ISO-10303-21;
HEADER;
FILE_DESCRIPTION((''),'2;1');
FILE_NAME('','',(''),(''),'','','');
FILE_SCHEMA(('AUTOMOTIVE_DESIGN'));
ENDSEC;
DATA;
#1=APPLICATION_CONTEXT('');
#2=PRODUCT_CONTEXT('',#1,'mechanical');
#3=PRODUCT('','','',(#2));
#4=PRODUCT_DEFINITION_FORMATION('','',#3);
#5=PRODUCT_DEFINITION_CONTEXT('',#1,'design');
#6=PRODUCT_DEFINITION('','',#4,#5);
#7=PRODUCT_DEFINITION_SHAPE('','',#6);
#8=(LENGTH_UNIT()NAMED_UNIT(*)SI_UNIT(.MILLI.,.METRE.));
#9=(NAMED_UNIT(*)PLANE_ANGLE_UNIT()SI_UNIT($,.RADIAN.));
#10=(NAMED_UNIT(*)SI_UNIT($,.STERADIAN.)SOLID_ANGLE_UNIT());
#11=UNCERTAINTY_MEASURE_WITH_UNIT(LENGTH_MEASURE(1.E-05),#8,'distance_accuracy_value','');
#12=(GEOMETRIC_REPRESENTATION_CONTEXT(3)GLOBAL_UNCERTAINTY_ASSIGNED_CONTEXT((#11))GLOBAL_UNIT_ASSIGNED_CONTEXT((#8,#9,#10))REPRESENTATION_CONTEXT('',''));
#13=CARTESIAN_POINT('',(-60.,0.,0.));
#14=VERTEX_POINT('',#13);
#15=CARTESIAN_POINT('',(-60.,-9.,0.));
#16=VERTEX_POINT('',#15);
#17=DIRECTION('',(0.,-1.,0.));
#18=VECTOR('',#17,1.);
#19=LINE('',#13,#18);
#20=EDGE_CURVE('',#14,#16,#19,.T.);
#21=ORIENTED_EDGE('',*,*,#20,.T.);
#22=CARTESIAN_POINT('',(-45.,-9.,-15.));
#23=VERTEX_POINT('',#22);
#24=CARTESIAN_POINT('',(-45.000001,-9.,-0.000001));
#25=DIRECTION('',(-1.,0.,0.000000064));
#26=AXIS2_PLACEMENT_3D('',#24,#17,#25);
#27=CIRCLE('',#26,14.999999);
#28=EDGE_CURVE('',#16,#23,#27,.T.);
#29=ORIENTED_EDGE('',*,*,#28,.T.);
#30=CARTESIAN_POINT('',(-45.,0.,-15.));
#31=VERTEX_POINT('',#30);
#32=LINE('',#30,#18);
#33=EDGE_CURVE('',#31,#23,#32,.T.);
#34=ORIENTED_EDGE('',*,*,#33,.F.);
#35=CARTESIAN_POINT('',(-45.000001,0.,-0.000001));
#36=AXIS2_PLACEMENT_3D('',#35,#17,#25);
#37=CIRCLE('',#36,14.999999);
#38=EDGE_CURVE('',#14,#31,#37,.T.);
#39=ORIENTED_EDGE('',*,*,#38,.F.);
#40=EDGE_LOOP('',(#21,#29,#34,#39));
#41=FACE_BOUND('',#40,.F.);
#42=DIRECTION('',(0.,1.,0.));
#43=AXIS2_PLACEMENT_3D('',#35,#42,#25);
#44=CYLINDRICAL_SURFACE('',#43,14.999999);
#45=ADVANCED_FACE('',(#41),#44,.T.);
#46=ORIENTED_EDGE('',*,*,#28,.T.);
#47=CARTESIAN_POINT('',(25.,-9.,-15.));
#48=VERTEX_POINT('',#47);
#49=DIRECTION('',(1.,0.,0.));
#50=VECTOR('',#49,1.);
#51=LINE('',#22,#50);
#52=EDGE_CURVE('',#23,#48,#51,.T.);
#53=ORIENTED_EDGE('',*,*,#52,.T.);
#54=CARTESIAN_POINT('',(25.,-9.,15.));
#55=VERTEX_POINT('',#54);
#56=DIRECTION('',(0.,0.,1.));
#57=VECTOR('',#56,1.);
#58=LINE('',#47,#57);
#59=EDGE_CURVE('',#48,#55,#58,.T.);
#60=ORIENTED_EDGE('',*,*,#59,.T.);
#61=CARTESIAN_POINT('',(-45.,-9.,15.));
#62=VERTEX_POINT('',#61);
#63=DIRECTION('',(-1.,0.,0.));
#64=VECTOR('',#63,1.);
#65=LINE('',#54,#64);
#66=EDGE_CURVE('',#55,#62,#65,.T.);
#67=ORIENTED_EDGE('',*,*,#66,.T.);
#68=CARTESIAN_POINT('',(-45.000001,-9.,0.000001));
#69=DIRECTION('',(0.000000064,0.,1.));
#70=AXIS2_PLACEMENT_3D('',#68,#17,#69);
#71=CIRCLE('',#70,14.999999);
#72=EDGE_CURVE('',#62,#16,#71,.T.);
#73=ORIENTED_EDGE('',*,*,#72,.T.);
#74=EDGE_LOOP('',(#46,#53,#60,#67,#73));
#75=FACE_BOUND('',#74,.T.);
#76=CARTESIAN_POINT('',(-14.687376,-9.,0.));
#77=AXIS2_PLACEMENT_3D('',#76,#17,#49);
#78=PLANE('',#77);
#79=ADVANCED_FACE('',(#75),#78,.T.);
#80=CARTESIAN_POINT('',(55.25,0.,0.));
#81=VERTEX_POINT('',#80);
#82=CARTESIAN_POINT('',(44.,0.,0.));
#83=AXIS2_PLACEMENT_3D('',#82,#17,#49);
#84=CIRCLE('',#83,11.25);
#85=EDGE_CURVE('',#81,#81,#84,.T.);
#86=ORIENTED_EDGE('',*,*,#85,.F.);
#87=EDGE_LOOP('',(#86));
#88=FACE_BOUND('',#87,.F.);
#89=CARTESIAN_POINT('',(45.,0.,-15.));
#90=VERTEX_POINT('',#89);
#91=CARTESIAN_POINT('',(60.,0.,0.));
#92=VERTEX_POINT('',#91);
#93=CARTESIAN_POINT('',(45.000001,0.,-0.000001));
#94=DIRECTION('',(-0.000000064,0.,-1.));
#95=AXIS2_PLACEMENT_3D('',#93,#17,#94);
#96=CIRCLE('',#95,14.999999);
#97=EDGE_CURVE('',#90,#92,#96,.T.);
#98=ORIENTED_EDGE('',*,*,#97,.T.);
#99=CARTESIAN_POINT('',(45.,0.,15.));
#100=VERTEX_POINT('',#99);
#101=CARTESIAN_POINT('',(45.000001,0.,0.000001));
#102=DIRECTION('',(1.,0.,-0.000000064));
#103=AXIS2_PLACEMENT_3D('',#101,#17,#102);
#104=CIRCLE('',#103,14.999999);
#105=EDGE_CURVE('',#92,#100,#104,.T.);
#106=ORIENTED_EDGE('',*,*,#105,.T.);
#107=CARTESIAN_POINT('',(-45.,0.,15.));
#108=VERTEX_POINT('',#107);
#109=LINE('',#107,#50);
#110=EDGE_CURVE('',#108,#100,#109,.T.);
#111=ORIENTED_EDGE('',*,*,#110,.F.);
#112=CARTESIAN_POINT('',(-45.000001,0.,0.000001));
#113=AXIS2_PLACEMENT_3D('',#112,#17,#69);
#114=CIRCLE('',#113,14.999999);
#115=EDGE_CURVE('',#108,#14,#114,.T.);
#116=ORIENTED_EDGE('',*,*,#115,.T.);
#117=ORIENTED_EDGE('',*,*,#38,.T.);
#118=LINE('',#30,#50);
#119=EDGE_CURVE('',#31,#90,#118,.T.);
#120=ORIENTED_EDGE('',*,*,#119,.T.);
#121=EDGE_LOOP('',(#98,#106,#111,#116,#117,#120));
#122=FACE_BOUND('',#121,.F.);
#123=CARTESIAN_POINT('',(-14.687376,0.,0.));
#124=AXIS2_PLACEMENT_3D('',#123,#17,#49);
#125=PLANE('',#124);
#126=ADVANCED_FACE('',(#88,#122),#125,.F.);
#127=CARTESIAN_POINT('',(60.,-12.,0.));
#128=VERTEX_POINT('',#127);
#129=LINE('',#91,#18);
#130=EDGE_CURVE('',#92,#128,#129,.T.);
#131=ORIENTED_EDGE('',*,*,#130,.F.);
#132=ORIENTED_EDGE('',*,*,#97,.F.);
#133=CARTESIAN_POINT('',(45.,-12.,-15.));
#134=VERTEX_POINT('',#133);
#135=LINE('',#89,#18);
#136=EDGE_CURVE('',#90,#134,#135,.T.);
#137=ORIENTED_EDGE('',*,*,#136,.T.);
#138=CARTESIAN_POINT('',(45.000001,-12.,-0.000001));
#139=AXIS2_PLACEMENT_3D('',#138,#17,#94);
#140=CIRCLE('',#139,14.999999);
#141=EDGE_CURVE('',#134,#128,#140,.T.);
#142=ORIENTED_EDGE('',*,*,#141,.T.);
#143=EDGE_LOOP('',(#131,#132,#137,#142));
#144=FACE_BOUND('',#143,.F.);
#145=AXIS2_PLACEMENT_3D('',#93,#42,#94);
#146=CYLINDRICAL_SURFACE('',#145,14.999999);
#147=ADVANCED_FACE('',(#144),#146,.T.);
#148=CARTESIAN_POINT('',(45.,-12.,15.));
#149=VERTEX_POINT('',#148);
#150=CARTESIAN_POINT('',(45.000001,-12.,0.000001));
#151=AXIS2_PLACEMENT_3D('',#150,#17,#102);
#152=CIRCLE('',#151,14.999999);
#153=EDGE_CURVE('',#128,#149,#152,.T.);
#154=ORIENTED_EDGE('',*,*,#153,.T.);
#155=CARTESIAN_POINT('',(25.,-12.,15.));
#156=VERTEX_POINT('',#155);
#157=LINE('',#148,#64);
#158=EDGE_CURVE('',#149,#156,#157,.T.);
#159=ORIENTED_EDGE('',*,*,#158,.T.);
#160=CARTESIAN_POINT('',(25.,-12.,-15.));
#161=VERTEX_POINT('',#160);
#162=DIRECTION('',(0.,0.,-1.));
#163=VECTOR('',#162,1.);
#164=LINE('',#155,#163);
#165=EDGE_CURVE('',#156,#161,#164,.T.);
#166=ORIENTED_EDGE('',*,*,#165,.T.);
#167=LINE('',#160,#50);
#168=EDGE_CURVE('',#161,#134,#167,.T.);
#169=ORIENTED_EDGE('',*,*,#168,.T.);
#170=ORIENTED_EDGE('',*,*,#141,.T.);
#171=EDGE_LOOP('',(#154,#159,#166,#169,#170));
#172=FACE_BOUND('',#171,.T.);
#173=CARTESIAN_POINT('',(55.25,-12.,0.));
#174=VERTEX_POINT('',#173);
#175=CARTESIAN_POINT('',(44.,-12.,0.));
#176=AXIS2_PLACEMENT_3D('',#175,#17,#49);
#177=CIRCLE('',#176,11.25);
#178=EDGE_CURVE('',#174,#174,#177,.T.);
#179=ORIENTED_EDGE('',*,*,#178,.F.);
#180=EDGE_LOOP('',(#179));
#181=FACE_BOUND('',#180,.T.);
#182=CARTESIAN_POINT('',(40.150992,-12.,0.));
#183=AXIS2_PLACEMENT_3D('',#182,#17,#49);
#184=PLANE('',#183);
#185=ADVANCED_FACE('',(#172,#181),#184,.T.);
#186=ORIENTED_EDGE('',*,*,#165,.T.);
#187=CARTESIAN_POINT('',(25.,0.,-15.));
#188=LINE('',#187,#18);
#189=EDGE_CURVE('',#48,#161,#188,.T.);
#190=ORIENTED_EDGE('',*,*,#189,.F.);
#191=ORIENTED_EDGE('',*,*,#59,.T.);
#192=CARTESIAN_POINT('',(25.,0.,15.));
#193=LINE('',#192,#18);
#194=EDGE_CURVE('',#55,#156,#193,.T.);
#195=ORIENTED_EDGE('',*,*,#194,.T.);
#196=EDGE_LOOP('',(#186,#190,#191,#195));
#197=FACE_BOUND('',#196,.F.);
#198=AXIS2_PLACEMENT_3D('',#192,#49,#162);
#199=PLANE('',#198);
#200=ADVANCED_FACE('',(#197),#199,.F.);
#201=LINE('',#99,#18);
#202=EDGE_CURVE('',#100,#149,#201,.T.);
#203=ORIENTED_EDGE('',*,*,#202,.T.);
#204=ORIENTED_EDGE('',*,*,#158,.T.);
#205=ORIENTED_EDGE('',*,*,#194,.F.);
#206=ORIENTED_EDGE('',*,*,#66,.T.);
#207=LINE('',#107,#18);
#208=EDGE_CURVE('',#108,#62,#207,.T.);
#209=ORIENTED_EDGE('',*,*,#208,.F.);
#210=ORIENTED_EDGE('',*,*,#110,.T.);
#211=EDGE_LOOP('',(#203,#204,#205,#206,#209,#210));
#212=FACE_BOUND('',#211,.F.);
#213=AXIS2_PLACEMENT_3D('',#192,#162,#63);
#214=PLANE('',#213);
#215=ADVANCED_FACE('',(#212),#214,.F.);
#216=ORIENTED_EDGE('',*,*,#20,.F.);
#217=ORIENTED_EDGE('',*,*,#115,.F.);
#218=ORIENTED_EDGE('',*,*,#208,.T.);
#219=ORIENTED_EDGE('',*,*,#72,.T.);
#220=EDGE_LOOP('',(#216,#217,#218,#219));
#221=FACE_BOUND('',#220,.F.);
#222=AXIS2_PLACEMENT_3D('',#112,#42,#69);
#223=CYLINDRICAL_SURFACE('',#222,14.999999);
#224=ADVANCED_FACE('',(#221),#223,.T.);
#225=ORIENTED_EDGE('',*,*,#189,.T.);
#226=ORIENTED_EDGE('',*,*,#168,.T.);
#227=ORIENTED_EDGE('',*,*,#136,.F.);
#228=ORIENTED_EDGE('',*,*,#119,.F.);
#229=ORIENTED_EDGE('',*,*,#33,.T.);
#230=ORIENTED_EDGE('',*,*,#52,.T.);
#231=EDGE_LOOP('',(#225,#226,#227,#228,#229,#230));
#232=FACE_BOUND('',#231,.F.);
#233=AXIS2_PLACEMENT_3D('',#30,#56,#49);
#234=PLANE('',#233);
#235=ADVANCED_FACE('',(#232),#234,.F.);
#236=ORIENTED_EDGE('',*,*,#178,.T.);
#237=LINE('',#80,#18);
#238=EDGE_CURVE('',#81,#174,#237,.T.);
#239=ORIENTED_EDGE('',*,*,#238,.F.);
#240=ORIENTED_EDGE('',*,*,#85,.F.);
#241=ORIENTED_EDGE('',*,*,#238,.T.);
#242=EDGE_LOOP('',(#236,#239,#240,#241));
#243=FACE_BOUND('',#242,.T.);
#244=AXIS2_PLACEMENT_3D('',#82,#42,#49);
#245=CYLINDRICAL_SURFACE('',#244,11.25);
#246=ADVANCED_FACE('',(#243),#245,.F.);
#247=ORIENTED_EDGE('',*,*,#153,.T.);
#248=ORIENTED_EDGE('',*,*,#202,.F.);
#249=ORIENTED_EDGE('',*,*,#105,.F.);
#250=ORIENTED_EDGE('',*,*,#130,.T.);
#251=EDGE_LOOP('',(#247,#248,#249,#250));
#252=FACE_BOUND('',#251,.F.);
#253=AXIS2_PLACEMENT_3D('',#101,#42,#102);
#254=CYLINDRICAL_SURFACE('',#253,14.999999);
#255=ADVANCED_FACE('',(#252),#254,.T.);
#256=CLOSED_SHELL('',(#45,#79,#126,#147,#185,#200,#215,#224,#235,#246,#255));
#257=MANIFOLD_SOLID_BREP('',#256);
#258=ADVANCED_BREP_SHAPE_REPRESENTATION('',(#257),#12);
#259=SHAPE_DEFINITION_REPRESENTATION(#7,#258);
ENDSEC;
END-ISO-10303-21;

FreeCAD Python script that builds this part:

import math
import FreeCAD as App
import Part
import Sketcher
from FreeCAD import Vector

doc = App.newDocument("Part")
params = doc.addObject("Spreadsheet::Sheet", "Params")
for row, (alias, value) in enumerate([
    ("sketch1_radius", "14.999999 mm"),
    ("sketch1_diameter", "22.5 mm"),
    ("sketch1_width", "20 mm"),
    ("pad1_length", "12 mm"),
    ("sketch2_radius", "14.999999 mm"),
    ("sketch2_width", "70 mm"),
    ("pad2_length", "9 mm"),
], start=1):
    params.set(f"A{row}", alias)
    params.set(f"B{row}", "=" + value)
    params.setAlias(f"B{row}", alias)

body = doc.addObject("PartDesign::Body", "Body")

# Sketch on XZ plane
sketch1 = body.newObject("Sketcher::SketchObject", "Sketch")
sketch1.AttachmentSupport = (doc.getObject("XZ_Plane"), [""])
sketch1.MapMode = "FlatFace"
sketch1.addGeometry(Part.LineSegment(Vector(25, -15, 0), Vector(45, -15, 0)), False)
sketch1.addGeometry(Part.ArcOfCircle(Part.Circle(Vector(45.000001, -0.000001, 0), Vector(0, 0, 1), 14.999999), math.radians(-90.000004), math.radians(0.000004)), False)
sketch1.addGeometry(Part.ArcOfCircle(Part.Circle(Vector(45.000001, 0.000001, 0), Vector(0, 0, 1), 14.999999), math.radians(-0.000004), math.radians(90.000004)), False)
sketch1.addGeometry(Part.LineSegment(Vector(45, 15, 0), Vector(25, 15, 0)), False)
sketch1.addGeometry(Part.LineSegment(Vector(25, 15, 0), Vector(25, -15, 0)), False)
sketch1.addGeometry(Part.Circle(Vector(44, 0, 0), Vector(0, 0, 1), 11.25), False)
sketch1.addConstraint(Sketcher.Constraint("Tangent", 0, 2, 1, 1))
sketch1.addConstraint(Sketcher.Constraint("Tangent", 1, 2, 2, 1))
sketch1.addConstraint(Sketcher.Constraint("Tangent", 2, 2, 3, 1))
sketch1.addConstraint(Sketcher.Constraint("Coincident", 3, 2, 4, 1))
sketch1.addConstraint(Sketcher.Constraint("Coincident", 4, 2, 0, 1))
sketch1.addConstraint(Sketcher.Constraint("Horizontal", 0))
sketch1.addConstraint(Sketcher.Constraint("Horizontal", 3))
sketch1.addConstraint(Sketcher.Constraint("Vertical", 4))
sketch1.addConstraint(Sketcher.Constraint("Equal", 1, 2))
sketch1.addConstraint(Sketcher.Constraint("PointOnObject", 1, 3, -1))
sketch1.addConstraint(Sketcher.Constraint("PointOnObject", 5, 3, -1))
sketch1.addConstraint(Sketcher.Constraint("PointOnObject", 1, 2, -1))
sketch1.addConstraint(Sketcher.Constraint("Radius", 1, 14.999999))
sketch1.addConstraint(Sketcher.Constraint("Diameter", 5, 22.5))
sketch1.addConstraint(Sketcher.Constraint("DistanceX", 0, 1, 0, 2, 20.0))
sketch1.addConstraint(Sketcher.Constraint("DistanceX", -1, 1, 1, 3, 45.000001))
sketch1.addConstraint(Sketcher.Constraint("DistanceX", -1, 1, 5, 3, 44.0))
sketch1.setExpression("Constraints[12]", "Params.sketch1_radius")
sketch1.setExpression("Constraints[13]", "Params.sketch1_diameter")
sketch1.setExpression("Constraints[14]", "Params.sketch1_width")
pad1 = body.newObject("PartDesign::Pad", "Pad")
pad1.Profile = sketch1
pad1.setExpression("Length", "Params.pad1_length")

# Sketch on XZ plane
sketch2 = body.newObject("Sketcher::SketchObject", "Sketch001")
sketch2.AttachmentSupport = (doc.getObject("XZ_Plane"), [""])
sketch2.MapMode = "FlatFace"
sketch2.addGeometry(Part.LineSegment(Vector(-45, -15, 0), Vector(25, -15, 0)), False)
sketch2.addGeometry(Part.LineSegment(Vector(25, -15, 0), Vector(25, 15, 0)), False)
sketch2.addGeometry(Part.LineSegment(Vector(25, 15, 0), Vector(-45, 15, 0)), False)
sketch2.addGeometry(Part.ArcOfCircle(Part.Circle(Vector(-45.000001, 0.000001, 0), Vector(0, 0, 1), 14.999999), math.radians(89.999996), math.radians(180.000004)), False)
sketch2.addGeometry(Part.ArcOfCircle(Part.Circle(Vector(-45.000001, -0.000001, 0), Vector(0, 0, 1), 14.999999), math.radians(179.999996), math.radians(270.000004)), False)
sketch2.addConstraint(Sketcher.Constraint("Coincident", 0, 2, 1, 1))
sketch2.addConstraint(Sketcher.Constraint("Coincident", 1, 2, 2, 1))
sketch2.addConstraint(Sketcher.Constraint("Tangent", 2, 2, 3, 1))
sketch2.addConstraint(Sketcher.Constraint("Tangent", 3, 2, 4, 1))
sketch2.addConstraint(Sketcher.Constraint("Tangent", 4, 2, 0, 1))
sketch2.addConstraint(Sketcher.Constraint("Horizontal", 0))
sketch2.addConstraint(Sketcher.Constraint("Vertical", 1))
sketch2.addConstraint(Sketcher.Constraint("Horizontal", 2))
sketch2.addConstraint(Sketcher.Constraint("Equal", 3, 4))
sketch2.addConstraint(Sketcher.Constraint("PointOnObject", 3, 3, -1))
sketch2.addConstraint(Sketcher.Constraint("PointOnObject", 3, 2, -1))
sketch2.addConstraint(Sketcher.Constraint("Radius", 3, 14.999999))
sketch2.addConstraint(Sketcher.Constraint("DistanceX", 0, 1, 0, 2, 70.0))
sketch2.addConstraint(Sketcher.Constraint("DistanceX", 3, 3, -1, 1, 45.000001))
sketch2.setExpression("Constraints[11]", "Params.sketch2_radius")
sketch2.setExpression("Constraints[12]", "Params.sketch2_width")
pad2 = body.newObject("PartDesign::Pad", "Pad001")
pad2.Profile = sketch2
pad2.setExpression("Length", "Params.pad2_length")

doc.recompute()
